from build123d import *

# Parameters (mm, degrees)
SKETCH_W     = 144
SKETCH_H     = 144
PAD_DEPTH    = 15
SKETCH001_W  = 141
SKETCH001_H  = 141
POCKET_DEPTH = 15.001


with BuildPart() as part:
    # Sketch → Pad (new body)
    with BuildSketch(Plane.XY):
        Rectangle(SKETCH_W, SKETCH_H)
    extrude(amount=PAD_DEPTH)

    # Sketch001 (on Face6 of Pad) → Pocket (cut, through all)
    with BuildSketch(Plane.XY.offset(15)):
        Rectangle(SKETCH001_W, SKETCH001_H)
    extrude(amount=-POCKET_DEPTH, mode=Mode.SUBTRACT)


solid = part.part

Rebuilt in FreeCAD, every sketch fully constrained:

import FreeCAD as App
import Part
import Sketcher

doc = App.newDocument("Part")
body = doc.addObject("PartDesign::Body", "Body")

# Sketch on XY plane
sketch1 = body.newObject("Sketcher::SketchObject", "Sketch")
sketch1.AttachmentSupport = (doc.getObject("XY_Plane"), [""])
sketch1.MapMode = "FlatFace"
sketch1.addGeometry([
    Part.LineSegment(App.Vector(-72, 72, 0), App.Vector(-72, -72, 0)),
    Part.LineSegment(App.Vector(-72, -72, 0), App.Vector(72, -72, 0)),
    Part.LineSegment(App.Vector(72, -72, 0), App.Vector(72, 72, 0)),
    Part.LineSegment(App.Vector(72, 72, 0), App.Vector(-72, 72, 0)),
], False)
sketch1.addConstraint([
    Sketcher.Constraint("Coincident", 0, 2, 1, 1),
    Sketcher.Constraint("Coincident", 1, 2, 2, 1),
    Sketcher.Constraint("Coincident", 2, 2, 3, 1),
    Sketcher.Constraint("Coincident", 3, 2, 0, 1),
    Sketcher.Constraint("Vertical", 0),
    Sketcher.Constraint("Horizontal", 1),
    Sketcher.Constraint("Vertical", 2),
    Sketcher.Constraint("Horizontal", 3),
    Sketcher.Constraint("Symmetric", 0, 2, 2, 2, -1, 1),
    Sketcher.Constraint("Equal", 3, 0),
    Sketcher.Constraint("DistanceX", 1, 1, 1, 2, 144.0),
])
pad1 = body.newObject("PartDesign::Pad", "Pad")
pad1.Profile = sketch1
pad1.Length = 15

# Sketch on XY plane
sketch2 = body.newObject("Sketcher::SketchObject", "Sketch001")
sketch2.AttachmentSupport = (doc.getObject("XY_Plane"), [""])
sketch2.MapMode = "FlatFace"
sketch2.AttachmentOffset = App.Placement(App.Vector(0, 0, 15), App.Rotation())
sketch2.addGeometry([
    Part.LineSegment(App.Vector(-70, 70, 0), App.Vector(-70, -70, 0)),
    Part.LineSegment(App.Vector(-70, -70, 0), App.Vector(70, -70, 0)),
    Part.LineSegment(App.Vector(70, -70, 0), App.Vector(70, 70, 0)),
    Part.LineSegment(App.Vector(70, 70, 0), App.Vector(-70, 70, 0)),
], False)
sketch2.addConstraint([
    Sketcher.Constraint("Coincident", 0, 2, 1, 1),
    Sketcher.Constraint("Coincident", 1, 2, 2, 1),
    Sketcher.Constraint("Coincident", 2, 2, 3, 1),
    Sketcher.Constraint("Coincident", 3, 2, 0, 1),
    Sketcher.Constraint("Vertical", 0),
    Sketcher.Constraint("Horizontal", 1),
    Sketcher.Constraint("Vertical", 2),
    Sketcher.Constraint("Horizontal", 3),
    Sketcher.Constraint("Symmetric", 0, 2, 2, 2, -1, 1),
    Sketcher.Constraint("Equal", 3, 0),
    Sketcher.Constraint("DistanceX", 1, 1, 1, 2, 141.0),
])
pocket1 = body.newObject("PartDesign::Pocket", "Pocket")
pocket1.Profile = sketch2
pocket1.Type = "ThroughAll"

doc.recompute()
